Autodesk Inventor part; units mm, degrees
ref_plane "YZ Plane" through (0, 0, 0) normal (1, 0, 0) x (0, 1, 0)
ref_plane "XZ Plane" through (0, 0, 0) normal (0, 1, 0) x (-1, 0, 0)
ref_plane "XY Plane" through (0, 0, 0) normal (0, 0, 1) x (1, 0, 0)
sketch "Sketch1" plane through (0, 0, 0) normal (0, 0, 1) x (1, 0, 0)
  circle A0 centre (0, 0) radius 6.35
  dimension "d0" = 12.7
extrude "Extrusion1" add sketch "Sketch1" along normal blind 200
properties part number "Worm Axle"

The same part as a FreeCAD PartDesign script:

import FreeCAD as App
import Part
import Sketcher
from FreeCAD import Vector
Q = App.Units.Quantity

doc = App.newDocument("Part")
body = doc.addObject("PartDesign::Body", "Body")

sketch1 = doc.addObject("Sketcher::SketchObject", "Sketch")
body.addObject(sketch1)
sketch1.AttachmentSupport = (doc.XY_Plane, [""])
sketch1.MapMode = "FlatFace"
sketch1.addGeometry(Part.Circle(Vector(0, 0, 0), Vector(0, 0, 1), 6), False)
sketch1.addConstraint(Sketcher.Constraint("Coincident", 0, 3, -1, 1))
sketch1.addConstraint(Sketcher.Constraint("Diameter", 0, Q("12.7 mm")))
pad1 = doc.addObject("PartDesign::Pad", "Pad")
body.addObject(pad1)
pad1.Profile = sketch1
pad1.Length = 200

doc.recompute()
